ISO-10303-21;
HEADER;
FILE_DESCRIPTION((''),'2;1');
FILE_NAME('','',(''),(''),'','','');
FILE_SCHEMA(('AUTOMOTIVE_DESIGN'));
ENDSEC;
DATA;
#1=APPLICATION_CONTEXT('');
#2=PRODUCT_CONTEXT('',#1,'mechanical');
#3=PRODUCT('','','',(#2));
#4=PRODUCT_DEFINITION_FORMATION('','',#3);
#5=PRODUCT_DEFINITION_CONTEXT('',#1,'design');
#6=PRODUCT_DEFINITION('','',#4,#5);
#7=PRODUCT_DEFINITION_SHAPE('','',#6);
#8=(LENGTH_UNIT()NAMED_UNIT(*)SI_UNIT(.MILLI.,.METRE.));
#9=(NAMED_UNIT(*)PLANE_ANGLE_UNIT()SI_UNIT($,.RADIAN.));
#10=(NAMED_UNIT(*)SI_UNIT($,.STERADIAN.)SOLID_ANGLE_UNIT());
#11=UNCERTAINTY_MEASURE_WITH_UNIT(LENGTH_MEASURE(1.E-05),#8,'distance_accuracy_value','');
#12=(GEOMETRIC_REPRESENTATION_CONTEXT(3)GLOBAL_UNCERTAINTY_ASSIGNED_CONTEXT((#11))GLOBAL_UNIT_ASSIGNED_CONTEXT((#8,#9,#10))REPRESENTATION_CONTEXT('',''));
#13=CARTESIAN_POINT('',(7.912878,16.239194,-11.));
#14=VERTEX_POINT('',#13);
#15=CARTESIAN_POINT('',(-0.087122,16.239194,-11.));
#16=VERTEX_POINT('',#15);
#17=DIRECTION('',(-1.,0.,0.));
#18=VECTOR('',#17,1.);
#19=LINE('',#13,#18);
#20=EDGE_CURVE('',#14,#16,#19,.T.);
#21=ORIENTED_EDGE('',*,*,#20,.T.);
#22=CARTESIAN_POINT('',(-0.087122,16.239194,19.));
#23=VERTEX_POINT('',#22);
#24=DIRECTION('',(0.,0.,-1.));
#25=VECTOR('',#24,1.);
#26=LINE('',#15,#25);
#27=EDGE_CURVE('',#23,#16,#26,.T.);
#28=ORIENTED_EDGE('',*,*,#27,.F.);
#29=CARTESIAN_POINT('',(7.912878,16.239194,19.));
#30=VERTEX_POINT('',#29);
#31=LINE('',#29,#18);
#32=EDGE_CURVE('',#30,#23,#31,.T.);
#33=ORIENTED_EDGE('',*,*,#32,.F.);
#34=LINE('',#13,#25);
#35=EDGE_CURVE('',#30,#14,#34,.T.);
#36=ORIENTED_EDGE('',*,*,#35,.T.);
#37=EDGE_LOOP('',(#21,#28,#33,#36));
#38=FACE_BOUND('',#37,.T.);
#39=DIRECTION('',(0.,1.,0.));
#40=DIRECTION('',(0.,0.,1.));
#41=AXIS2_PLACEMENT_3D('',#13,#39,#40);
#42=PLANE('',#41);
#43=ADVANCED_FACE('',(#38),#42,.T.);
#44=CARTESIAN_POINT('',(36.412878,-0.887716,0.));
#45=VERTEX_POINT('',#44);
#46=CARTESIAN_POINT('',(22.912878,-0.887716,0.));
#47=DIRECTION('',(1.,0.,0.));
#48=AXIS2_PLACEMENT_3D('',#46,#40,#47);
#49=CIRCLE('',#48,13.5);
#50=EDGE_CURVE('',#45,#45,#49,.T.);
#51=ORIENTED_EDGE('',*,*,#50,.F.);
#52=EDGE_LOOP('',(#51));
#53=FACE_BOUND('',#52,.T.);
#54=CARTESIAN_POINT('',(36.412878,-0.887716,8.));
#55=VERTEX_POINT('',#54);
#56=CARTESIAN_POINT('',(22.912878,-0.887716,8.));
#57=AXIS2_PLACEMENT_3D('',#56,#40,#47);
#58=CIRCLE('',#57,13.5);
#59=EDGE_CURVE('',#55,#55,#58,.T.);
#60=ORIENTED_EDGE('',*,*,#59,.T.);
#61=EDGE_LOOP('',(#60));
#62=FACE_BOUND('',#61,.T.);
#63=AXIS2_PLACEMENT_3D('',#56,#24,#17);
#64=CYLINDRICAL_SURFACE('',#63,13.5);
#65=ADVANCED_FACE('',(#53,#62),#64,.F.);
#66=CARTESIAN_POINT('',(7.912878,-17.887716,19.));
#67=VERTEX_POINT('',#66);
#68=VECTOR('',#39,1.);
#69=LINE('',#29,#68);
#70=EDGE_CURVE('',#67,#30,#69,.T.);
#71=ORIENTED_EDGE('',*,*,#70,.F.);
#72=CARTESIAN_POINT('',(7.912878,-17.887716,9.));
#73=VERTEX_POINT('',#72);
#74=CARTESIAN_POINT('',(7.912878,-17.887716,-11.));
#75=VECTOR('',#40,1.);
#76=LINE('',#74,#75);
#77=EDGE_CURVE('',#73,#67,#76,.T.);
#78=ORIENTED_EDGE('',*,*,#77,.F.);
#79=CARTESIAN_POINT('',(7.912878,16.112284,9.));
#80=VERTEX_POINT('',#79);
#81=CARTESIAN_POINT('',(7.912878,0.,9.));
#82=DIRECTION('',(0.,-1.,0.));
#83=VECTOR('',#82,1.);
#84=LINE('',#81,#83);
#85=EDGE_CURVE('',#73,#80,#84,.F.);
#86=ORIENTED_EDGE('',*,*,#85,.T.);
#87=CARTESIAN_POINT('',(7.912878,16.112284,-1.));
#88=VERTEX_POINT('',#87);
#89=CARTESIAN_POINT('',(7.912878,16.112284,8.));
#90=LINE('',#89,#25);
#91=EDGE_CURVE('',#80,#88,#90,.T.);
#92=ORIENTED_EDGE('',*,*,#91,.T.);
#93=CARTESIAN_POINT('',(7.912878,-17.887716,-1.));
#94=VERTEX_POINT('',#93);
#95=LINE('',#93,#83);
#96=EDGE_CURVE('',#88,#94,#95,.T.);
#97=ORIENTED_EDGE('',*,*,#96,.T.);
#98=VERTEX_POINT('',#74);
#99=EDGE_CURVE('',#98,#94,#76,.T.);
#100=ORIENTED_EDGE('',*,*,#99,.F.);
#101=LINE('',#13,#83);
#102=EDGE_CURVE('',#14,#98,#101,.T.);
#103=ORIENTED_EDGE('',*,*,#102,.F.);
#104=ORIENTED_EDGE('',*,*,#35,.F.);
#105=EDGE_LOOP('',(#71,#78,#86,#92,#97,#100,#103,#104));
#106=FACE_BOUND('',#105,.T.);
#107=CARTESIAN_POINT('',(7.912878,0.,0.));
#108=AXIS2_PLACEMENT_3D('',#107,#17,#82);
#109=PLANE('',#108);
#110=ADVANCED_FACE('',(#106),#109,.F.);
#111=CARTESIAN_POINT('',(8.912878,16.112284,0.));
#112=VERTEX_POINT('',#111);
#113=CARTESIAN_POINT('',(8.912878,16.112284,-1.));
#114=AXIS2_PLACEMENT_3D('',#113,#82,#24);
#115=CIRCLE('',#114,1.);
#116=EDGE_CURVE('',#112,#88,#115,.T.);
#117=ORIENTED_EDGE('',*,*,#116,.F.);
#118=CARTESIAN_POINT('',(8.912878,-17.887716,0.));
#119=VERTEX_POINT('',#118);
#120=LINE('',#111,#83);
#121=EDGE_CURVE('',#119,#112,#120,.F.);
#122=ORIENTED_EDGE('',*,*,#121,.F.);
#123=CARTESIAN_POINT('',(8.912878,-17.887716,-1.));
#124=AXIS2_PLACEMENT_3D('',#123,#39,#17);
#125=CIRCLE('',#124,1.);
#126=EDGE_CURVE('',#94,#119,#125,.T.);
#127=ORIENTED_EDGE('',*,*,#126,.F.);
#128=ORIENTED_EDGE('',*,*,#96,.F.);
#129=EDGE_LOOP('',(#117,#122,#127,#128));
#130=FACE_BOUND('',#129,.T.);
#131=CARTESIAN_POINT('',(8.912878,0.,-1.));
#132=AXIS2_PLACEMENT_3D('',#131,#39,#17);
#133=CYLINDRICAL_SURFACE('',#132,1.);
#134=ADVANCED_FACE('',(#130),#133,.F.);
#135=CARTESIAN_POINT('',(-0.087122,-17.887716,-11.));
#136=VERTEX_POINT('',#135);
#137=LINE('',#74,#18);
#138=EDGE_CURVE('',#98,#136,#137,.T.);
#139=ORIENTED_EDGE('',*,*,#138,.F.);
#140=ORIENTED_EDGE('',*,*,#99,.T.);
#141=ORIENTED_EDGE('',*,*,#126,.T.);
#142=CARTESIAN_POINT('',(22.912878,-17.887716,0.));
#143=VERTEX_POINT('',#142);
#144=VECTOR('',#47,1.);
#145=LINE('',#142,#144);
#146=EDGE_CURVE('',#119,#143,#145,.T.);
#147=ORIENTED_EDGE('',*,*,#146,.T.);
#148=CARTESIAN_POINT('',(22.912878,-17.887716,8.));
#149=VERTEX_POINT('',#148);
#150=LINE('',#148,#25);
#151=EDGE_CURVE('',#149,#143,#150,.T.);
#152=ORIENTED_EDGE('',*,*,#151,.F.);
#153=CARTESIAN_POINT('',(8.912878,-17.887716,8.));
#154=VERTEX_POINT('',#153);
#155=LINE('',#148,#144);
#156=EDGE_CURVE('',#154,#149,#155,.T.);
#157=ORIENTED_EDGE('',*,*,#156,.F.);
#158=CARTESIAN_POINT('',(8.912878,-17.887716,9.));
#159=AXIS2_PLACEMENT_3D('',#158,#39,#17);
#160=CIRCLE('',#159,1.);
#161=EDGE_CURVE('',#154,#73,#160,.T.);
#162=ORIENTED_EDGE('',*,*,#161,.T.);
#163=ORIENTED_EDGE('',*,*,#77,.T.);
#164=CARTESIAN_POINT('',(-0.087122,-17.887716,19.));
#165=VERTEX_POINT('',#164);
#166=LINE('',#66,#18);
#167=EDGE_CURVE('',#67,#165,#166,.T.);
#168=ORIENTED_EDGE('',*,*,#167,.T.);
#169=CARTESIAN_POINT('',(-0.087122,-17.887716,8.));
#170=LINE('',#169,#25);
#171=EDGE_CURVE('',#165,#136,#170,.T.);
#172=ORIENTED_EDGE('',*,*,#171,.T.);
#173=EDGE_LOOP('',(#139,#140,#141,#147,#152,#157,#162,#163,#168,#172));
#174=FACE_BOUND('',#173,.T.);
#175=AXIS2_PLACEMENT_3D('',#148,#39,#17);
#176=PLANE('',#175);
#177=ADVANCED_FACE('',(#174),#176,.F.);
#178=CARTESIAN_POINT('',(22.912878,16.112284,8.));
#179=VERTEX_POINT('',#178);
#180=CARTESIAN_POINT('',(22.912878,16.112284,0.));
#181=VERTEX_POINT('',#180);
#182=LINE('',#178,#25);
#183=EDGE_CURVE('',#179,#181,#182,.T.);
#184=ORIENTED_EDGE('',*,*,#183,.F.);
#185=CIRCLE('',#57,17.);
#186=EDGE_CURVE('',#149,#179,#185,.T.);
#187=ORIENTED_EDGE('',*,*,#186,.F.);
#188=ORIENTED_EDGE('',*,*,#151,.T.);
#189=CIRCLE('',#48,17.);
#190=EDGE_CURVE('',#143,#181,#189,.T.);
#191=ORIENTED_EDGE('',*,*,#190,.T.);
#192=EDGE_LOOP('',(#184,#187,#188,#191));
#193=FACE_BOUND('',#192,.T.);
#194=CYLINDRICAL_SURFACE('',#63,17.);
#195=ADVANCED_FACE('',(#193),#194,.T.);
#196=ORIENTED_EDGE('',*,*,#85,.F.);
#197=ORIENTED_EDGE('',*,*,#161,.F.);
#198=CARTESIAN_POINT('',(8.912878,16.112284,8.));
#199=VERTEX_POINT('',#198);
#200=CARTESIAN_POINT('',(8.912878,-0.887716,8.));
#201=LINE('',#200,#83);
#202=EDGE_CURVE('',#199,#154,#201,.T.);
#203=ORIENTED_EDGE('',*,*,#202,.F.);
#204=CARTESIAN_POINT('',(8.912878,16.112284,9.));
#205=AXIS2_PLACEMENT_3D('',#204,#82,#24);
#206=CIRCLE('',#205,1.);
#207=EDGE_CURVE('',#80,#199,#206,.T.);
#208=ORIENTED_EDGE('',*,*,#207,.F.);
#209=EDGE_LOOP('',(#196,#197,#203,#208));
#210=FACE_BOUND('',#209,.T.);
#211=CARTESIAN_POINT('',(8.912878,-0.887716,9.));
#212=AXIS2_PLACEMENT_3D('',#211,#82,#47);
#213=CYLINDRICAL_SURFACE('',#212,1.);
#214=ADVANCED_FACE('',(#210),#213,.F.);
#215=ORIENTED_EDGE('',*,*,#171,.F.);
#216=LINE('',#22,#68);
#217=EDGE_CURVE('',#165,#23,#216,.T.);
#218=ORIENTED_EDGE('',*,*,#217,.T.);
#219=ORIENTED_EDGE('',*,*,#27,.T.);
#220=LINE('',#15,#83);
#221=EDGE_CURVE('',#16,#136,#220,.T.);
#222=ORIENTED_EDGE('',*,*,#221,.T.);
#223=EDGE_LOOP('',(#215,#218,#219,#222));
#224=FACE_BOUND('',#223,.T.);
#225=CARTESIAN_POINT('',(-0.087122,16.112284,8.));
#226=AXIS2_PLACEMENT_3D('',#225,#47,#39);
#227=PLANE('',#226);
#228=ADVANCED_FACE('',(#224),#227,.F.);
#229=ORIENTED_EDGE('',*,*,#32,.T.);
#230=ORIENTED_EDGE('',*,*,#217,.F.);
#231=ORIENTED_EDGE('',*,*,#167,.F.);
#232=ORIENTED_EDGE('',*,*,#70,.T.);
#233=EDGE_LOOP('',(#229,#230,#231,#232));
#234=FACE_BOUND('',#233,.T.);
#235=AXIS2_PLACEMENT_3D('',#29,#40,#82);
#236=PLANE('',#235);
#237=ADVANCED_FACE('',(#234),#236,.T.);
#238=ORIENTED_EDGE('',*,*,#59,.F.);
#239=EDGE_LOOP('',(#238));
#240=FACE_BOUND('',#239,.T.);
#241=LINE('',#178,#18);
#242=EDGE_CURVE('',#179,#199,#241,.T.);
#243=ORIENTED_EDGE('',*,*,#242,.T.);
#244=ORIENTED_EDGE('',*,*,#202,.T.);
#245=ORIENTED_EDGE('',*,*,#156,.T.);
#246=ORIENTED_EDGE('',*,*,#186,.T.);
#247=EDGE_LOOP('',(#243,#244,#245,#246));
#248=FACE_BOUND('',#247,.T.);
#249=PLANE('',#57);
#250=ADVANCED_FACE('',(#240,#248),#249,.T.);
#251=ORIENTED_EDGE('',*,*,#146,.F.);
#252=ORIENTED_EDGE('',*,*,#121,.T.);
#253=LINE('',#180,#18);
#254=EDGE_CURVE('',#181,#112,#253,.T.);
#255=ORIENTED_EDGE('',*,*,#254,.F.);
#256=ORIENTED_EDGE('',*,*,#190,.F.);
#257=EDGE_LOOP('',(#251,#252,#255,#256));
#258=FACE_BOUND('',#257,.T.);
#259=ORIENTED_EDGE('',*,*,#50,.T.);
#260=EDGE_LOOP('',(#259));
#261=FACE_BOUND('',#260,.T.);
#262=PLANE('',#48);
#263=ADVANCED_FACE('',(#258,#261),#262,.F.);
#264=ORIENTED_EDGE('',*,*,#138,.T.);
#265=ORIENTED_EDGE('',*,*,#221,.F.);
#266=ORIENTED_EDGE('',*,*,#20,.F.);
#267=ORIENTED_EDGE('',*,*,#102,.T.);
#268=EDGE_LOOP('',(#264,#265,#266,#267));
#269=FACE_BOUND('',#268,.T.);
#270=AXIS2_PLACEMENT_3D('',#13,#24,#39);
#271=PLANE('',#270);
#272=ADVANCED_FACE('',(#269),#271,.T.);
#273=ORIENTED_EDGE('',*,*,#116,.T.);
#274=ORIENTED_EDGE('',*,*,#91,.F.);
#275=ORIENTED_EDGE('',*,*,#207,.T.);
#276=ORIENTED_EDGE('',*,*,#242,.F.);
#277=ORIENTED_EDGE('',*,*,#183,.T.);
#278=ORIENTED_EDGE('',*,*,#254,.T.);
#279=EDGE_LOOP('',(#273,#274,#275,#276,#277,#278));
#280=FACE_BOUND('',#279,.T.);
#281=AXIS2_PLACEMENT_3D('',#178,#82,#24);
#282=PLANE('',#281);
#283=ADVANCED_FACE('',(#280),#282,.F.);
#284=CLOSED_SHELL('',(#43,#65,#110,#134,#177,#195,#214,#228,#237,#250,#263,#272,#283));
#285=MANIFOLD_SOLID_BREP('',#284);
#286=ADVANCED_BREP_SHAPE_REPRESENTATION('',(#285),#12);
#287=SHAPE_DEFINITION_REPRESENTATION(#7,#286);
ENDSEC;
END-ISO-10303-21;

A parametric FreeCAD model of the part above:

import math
import FreeCAD as App
import Part
import Sketcher

V = App.Vector


def edges_at(feature, points):
    """Names of the edges that pass closest to the given points."""
    edges = feature.Shape.Edges
    near = lambda p: min(range(len(edges)), key=lambda i: edges[i].distToShape(Part.Vertex(*p))[0])
    return sorted({f"Edge{near(p) + 1}" for p in points})


def add_polygon(sketch, points):
    """Adds a closed chain of lines whose ends are joined by coincident constraints."""
    first, n = sketch.GeometryCount, len(points)
    for a, b in zip(points, points[1:] + points[:1]):
        sketch.addGeometry(Part.LineSegment(App.Vector(*a, 0), App.Vector(*b, 0)), False)
    for i in range(n):
        sketch.addConstraint(Sketcher.Constraint("Coincident", first + i, 2, first + (i + 1) % n, 1))

doc = App.newDocument("Part")
params = doc.addObject("Spreadsheet::Sheet", "Params")
for row, (alias, value) in enumerate([
    ("sketch1_diameter", "27 mm"),
    ("sketch1_radius", "17 mm"),
    ("sketch1_width", "23 mm"),
    ("pad1_length", "8 mm"),
    ("sketch2_height", "30 mm"),
    ("pad2_length", "8 mm"),
    ("fillet_radius", "1 mm"),
], start=1):
    params.set(f"A{row}", alias)
    params.set(f"B{row}", "=" + value)
    params.setAlias(f"B{row}", alias)

body = doc.addObject("PartDesign::Body", "Body")

# Sketch on XY plane
sketch1 = body.newObject("Sketcher::SketchObject", "Sketch")
sketch1.AttachmentSupport = (doc.getObject("XY_Plane"), [""])
sketch1.MapMode = "FlatFace"
sketch1.addGeometry([
    Part.LineSegment(V(22.912878, 16.112284, 0), V(-0.087122, 16.112284, 0)),  # 0
    Part.LineSegment(V(-0.087122, 16.112284, 0), V(-0.087122, -17.887716, 0)),  # 1
    Part.LineSegment(V(-0.087122, -17.887716, 0), V(22.912878, -17.887716, 0)),  # 2
    Part.ArcOfCircle(Part.Circle(V(22.912878, -0.887716, 0), V(0, 0, 1), 17), math.radians(-90), math.radians(90)),  # 3
    Part.Circle(V(22.912878, -0.887716, 0), V(0, 0, 1), 13.5),  # 4
], False)
sketch1.addConstraint([
    Sketcher.Constraint("Coincident", 0, 2, 1, 1),
    Sketcher.Constraint("Coincident", 1, 2, 2, 1),
    Sketcher.Constraint("Tangent", 2, 2, 3, 1),
    Sketcher.Constraint("Tangent", 3, 2, 0, 1),
    Sketcher.Constraint("Horizontal", 0),
    Sketcher.Constraint("Vertical", 1),
    Sketcher.Constraint("Horizontal", 2),
    Sketcher.Constraint("Coincident", 4, 3, 3, 3),
    Sketcher.Constraint("Diameter", 4, 27.0),
    Sketcher.Constraint("Radius", 3, 17.0),
    Sketcher.Constraint("DistanceX", 0, 2, 0, 1, 23.0),
    Sketcher.Constraint("DistanceX", -1, 1, 3, 3, 22.912878),
    Sketcher.Constraint("DistanceY", 3, 3, -1, 1, 0.887716),
])
sketch1.setExpression("Constraints[8]", "Params.sketch1_diameter")
sketch1.setExpression("Constraints[9]", "Params.sketch1_radius")
sketch1.setExpression("Constraints[10]", "Params.sketch1_width")
pad1 = body.newObject("PartDesign::Pad", "Pad")
pad1.Profile = sketch1
pad1.setExpression("Length", "Params.pad1_length")

# Sketch on YZ plane
sketch2 = body.newObject("Sketcher::SketchObject", "Sketch001")
sketch2.AttachmentSupport = (doc.getObject("YZ_Plane"), [""])
sketch2.MapMode = "FlatFace"
sketch2.AttachmentOffset = App.Placement(V(0, 0, -0.087122), App.Rotation())
add_polygon(sketch2, [(16.239194, -11), (-17.887716, -11), (-17.887716, 19), (16.239194, 19)])  # lines 0-3
sketch2.addConstraint([
    Sketcher.Constraint("Horizontal", 0),
    Sketcher.Constraint("Vertical", 1),
    Sketcher.Constraint("Horizontal", 2),
    Sketcher.Constraint("Vertical", 3),
    Sketcher.Constraint("DistanceY", 1, 1, 1, 2, 30.0),
    Sketcher.Constraint("DistanceY", 0, 2, -1, 1, 11.0),
    Sketcher.Constraint("DistanceX", 0, 2, 0, 1, 34.12691),
    Sketcher.Constraint("DistanceX", 0, 2, -1, 1, 17.887716),
])
sketch2.setExpression("Constraints[8]", "Params.sketch2_height")
pad2 = body.newObject("PartDesign::Pad", "Pad001")
pad2.Profile = sketch2
pad2.setExpression("Length", "Params.pad2_length")
doc.recompute()

fillet = body.newObject("PartDesign::Fillet", "Fillet")
fillet.Base = (pad2, edges_at(pad2, [(7.913, -0.888, 8), (7.913, -0.888, 0)]))
fillet.setExpression("Radius", "Params.fillet_radius")

doc.recompute()
